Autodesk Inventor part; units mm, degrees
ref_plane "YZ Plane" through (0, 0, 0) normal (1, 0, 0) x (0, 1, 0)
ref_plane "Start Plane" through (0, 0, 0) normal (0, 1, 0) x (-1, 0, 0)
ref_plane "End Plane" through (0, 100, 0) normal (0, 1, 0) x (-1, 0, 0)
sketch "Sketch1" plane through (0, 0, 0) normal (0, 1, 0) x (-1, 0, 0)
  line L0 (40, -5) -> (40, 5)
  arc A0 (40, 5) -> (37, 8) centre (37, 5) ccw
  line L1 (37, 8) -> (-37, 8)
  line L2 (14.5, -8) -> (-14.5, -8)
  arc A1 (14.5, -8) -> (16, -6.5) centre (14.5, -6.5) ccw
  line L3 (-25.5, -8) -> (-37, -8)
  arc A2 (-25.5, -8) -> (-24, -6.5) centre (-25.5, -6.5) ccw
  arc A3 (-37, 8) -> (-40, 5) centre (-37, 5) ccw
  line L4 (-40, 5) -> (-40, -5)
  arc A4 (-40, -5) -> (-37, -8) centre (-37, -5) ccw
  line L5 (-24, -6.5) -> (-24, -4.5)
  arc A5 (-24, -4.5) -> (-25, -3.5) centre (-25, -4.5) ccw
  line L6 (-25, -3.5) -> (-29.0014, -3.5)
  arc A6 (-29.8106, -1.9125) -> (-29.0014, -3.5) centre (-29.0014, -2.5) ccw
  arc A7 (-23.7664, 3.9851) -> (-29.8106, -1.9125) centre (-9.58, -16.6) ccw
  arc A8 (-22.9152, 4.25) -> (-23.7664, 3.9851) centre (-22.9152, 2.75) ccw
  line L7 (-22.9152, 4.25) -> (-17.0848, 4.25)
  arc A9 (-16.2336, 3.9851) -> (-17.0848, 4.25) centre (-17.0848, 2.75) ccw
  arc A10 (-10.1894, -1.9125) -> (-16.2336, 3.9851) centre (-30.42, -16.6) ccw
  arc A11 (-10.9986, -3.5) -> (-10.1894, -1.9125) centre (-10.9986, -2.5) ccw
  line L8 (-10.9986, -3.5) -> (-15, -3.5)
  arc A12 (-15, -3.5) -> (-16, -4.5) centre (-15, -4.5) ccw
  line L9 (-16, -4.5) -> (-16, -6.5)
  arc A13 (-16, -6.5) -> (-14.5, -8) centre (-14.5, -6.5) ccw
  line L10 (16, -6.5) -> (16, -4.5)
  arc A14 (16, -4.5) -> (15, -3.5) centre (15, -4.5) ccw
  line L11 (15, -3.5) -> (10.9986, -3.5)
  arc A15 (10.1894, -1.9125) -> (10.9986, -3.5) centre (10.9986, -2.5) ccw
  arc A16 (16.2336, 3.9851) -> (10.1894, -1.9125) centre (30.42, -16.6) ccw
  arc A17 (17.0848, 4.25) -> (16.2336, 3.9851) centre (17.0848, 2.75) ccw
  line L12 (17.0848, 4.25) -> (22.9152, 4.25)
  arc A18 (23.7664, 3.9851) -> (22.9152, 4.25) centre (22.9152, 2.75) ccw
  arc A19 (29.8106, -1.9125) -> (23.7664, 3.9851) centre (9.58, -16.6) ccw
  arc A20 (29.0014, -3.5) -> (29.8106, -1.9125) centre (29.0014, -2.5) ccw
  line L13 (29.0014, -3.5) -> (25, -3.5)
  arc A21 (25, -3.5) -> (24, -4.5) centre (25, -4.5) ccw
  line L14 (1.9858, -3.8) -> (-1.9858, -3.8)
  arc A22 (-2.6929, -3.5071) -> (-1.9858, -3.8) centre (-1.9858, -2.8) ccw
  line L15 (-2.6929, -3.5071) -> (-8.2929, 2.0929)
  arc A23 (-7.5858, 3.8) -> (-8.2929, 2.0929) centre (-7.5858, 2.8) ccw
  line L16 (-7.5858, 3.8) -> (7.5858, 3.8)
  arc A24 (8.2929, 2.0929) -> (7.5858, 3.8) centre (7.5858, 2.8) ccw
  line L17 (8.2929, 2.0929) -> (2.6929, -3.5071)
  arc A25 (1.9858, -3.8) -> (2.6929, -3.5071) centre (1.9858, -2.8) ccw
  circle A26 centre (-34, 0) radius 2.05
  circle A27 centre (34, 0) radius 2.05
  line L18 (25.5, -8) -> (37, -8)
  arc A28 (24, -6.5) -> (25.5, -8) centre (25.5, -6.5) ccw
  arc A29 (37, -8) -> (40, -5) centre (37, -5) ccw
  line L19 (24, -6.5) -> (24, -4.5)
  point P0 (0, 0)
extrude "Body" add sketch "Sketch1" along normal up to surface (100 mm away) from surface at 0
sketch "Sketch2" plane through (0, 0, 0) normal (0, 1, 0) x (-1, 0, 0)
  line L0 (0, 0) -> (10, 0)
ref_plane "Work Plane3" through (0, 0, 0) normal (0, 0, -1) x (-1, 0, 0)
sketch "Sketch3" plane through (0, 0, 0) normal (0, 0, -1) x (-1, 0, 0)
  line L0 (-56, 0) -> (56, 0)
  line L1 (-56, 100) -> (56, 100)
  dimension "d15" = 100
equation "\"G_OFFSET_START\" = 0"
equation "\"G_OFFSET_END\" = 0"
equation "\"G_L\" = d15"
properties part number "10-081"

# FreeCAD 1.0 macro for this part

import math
import FreeCAD as App
import Part
import Sketcher

V = App.Vector

doc = App.newDocument("Part")
params = doc.addObject("Spreadsheet::Sheet", "Params")
for row, (alias, value) in enumerate([
    ("sketch1_radius", "3 mm"),
    ("sketch1_radius2", "1 mm"),
    ("sketch1_radius3", "25 mm"),
    ("sketch1_diameter", "4.1 mm"),
    ("sketch1_radius4", "1.5 mm"),
    ("pad1_length", "100 mm"),
], start=1):
    params.set(f"A{row}", alias)
    params.set(f"B{row}", "=" + value)
    params.setAlias(f"B{row}", alias)

body = doc.addObject("PartDesign::Body", "Body")

# Sketch on XZ plane
sketch1 = body.newObject("Sketcher::SketchObject", "Sketch")
sketch1.AttachmentSupport = (doc.getObject("XZ_Plane"), [""])
sketch1.MapMode = "FlatFace"
sketch1.addGeometry(Part.ArcOfCircle(Part.Circle(V(-37, -5, 0), V(0, 0, 1), 3), math.radians(180), math.radians(270)), False)
sketch1.addGeometry(Part.LineSegment(V(-40, -5, 0), V(-40, 5, 0)), False)
sketch1.addGeometry(Part.ArcOfCircle(Part.Circle(V(-37, 5, 0), V(0, 0, 1), 3), math.radians(90), math.radians(180)), False)
sketch1.addGeometry(Part.LineSegment(V(-37, 8, 0), V(37, 8, 0)), False)
sketch1.addGeometry(Part.ArcOfCircle(Part.Circle(V(37, 5, 0), V(0, 0, 1), 3), math.radians(0), math.radians(90)), False)
sketch1.addGeometry(Part.LineSegment(V(40, 5, 0), V(40, -5, 0)), False)
sketch1.addGeometry(Part.ArcOfCircle(Part.Circle(V(37, -5, 0), V(0, 0, 1), 3), math.radians(-90), math.radians(0)), False)
sketch1.addGeometry(Part.LineSegment(V(37, -8, 0), V(25.5, -8, 0)), False)
sketch1.addGeometry(Part.ArcOfCircle(Part.Circle(V(25.5, -6.5, 0), V(0, 0, 1), 1.5), math.radians(180), math.radians(270)), False)
sketch1.addGeometry(Part.LineSegment(V(24, -6.5, 0), V(24, -4.5, 0)), False)
sketch1.addGeometry(Part.ArcOfCircle(Part.Circle(V(25, -4.5, 0), V(0, 0, 1), 1), math.radians(90), math.radians(180)), False)
sketch1.addGeometry(Part.LineSegment(V(25, -3.5, 0), V(29, -3.5, 0)), False)
sketch1.addGeometry(Part.ArcOfCircle(Part.Circle(V(29, -2.5, 0), V(0, 0, 1), 1), math.radians(-90), math.radians(36)), False)
sketch1.addGeometry(Part.ArcOfCircle(Part.Circle(V(9.6, -16.6, 0), V(0, 0, 1), 25), math.radians(35.98), math.radians(55.43)), False)
sketch1.addGeometry(Part.ArcOfCircle(Part.Circle(V(22.9, 2.8, 0), V(0, 0, 1), 1.5), math.radians(55), math.radians(90)), False)
sketch1.addGeometry(Part.LineSegment(V(22.9, 4.2, 0), V(17.1, 4.2, 0)), False)
sketch1.addGeometry(Part.ArcOfCircle(Part.Circle(V(17.1, 2.8, 0), V(0, 0, 1), 1.5), math.radians(90), math.radians(125)), False)
sketch1.addGeometry(Part.ArcOfCircle(Part.Circle(V(30.4, -16.6, 0), V(0, 0, 1), 25), math.radians(124.57), math.radians(144.02)), False)
sketch1.addGeometry(Part.ArcOfCircle(Part.Circle(V(11, -2.5, 0), V(0, 0, 1), 1), math.radians(144), math.radians(270)), False)
sketch1.addGeometry(Part.LineSegment(V(11, -3.5, 0), V(15, -3.5, 0)), False)
sketch1.addGeometry(Part.ArcOfCircle(Part.Circle(V(15, -4.5, 0), V(0, 0, 1), 1), math.radians(0), math.radians(90)), False)
sketch1.addGeometry(Part.LineSegment(V(16, -4.5, 0), V(16, -6.5, 0)), False)
sketch1.addGeometry(Part.ArcOfCircle(Part.Circle(V(14.5, -6.5, 0), V(0, 0, 1), 1.5), math.radians(-90), math.radians(0)), False)
sketch1.addGeometry(Part.LineSegment(V(14.5, -8, 0), V(-14.5, -8, 0)), False)
sketch1.addGeometry(Part.ArcOfCircle(Part.Circle(V(-14.5, -6.5, 0), V(0, 0, 1), 1.5), math.radians(180), math.radians(270)), False)
sketch1.addGeometry(Part.LineSegment(V(-16, -6.5, 0), V(-16, -4.5, 0)), False)
sketch1.addGeometry(Part.ArcOfCircle(Part.Circle(V(-15, -4.5, 0), V(0, 0, 1), 1), math.radians(90), math.radians(180)), False)
sketch1.addGeometry(Part.LineSegment(V(-15, -3.5, 0), V(-11, -3.5, 0)), False)
sketch1.addGeometry(Part.ArcOfCircle(Part.Circle(V(-11, -2.5, 0), V(0, 0, 1), 1), math.radians(-90), math.radians(36)), False)
sketch1.addGeometry(Part.ArcOfCircle(Part.Circle(V(-30.4, -16.6, 0), V(0, 0, 1), 25), math.radians(35.98), math.radians(55.43)), False)
sketch1.addGeometry(Part.ArcOfCircle(Part.Circle(V(-17.1, 2.8, 0), V(0, 0, 1), 1.5), math.radians(55), math.radians(90)), False)
sketch1.addGeometry(Part.LineSegment(V(-17.1, 4.2, 0), V(-22.9, 4.2, 0)), False)
sketch1.addGeometry(Part.ArcOfCircle(Part.Circle(V(-22.9, 2.8, 0), V(0, 0, 1), 1.5), math.radians(90), math.radians(125)), False)
sketch1.addGeometry(Part.ArcOfCircle(Part.Circle(V(-9.6, -16.6, 0), V(0, 0, 1), 25), math.radians(124.57), math.radians(144.02)), False)
sketch1.addGeometry(Part.ArcOfCircle(Part.Circle(V(-29, -2.5, 0), V(0, 0, 1), 1), math.radians(144), math.radians(270)), False)
sketch1.addGeometry(Part.LineSegment(V(-29, -3.5, 0), V(-25, -3.5, 0)), False)
sketch1.addGeometry(Part.ArcOfCircle(Part.Circle(V(-25, -4.5, 0), V(0, 0, 1), 1), math.radians(0), math.radians(90)), False)
sketch1.addGeometry(Part.LineSegment(V(-24, -4.5, 0), V(-24, -6.5, 0)), False)
sketch1.addGeometry(Part.ArcOfCircle(Part.Circle(V(-25.5, -6.5, 0), V(0, 0, 1), 1.5), math.radians(-90), math.radians(0)), False)
sketch1.addGeometry(Part.LineSegment(V(-25.5, -8, 0), V(-37, -8, 0)), False)
sketch1.addGeometry(Part.ArcOfCircle(Part.Circle(V(-2, -2.8, 0), V(0, 0, 1), 1), math.radians(-135), math.radians(-90)), False)
sketch1.addGeometry(Part.LineSegment(V(-2, -3.8, 0), V(2, -3.8, 0)), False)
sketch1.addGeometry(Part.ArcOfCircle(Part.Circle(V(2, -2.8, 0), V(0, 0, 1), 1), math.radians(-90), math.radians(-45)), False)
sketch1.addGeometry(Part.LineSegment(V(2.7, -3.5, 0), V(8.3, 2.1, 0)), False)
sketch1.addGeometry(Part.ArcOfCircle(Part.Circle(V(7.6, 2.8, 0), V(0, 0, 1), 1), math.radians(-45), math.radians(90)), False)
sketch1.addGeometry(Part.LineSegment(V(7.6, 3.8, 0), V(-7.6, 3.8, 0)), False)
sketch1.addGeometry(Part.ArcOfCircle(Part.Circle(V(-7.6, 2.8, 0), V(0, 0, 1), 1), math.radians(90), math.radians(225)), False)
sketch1.addGeometry(Part.LineSegment(V(-8.3, 2.1, 0), V(-2.7, -3.5, 0)), False)
sketch1.addGeometry(Part.Circle(V(34, 0, 0), V(0, 0, 1), 2), False)
sketch1.addGeometry(Part.Circle(V(-34, 0, 0), V(0, 0, 1), 2), False)
sketch1.addConstraint(Sketcher.Constraint("Tangent", 0, 1, 1, 1))
sketch1.addConstraint(Sketcher.Constraint("Tangent", 1, 2, 2, 2))
sketch1.addConstraint(Sketcher.Constraint("Tangent", 2, 1, 3, 1))
sketch1.addConstraint(Sketcher.Constraint("Tangent", 3, 2, 4, 2))
sketch1.addConstraint(Sketcher.Constraint("Tangent", 4, 1, 5, 1))
sketch1.addConstraint(Sketcher.Constraint("Tangent", 5, 2, 6, 2))
sketch1.addConstraint(Sketcher.Constraint("Tangent", 6, 1, 7, 1))
sketch1.addConstraint(Sketcher.Constraint("Tangent", 7, 2, 8, 2))
sketch1.addConstraint(Sketcher.Constraint("Tangent", 8, 1, 9, 1))
sketch1.addConstraint(Sketcher.Constraint("Tangent", 9, 2, 10, 2))
sketch1.addConstraint(Sketcher.Constraint("Tangent", 10, 1, 11, 1))
sketch1.addConstraint(Sketcher.Constraint("Tangent", 11, 2, 12, 1))
sketch1.addConstraint(Sketcher.Constraint("Tangent", 12, 2, 13, 1))
sketch1.addConstraint(Sketcher.Constraint("Tangent", 13, 2, 14, 1))
sketch1.addConstraint(Sketcher.Constraint("Tangent", 14, 2, 15, 1))
sketch1.addConstraint(Sketcher.Constraint("Tangent", 15, 2, 16, 1))
sketch1.addConstraint(Sketcher.Constraint("Tangent", 16, 2, 17, 1))
sketch1.addConstraint(Sketcher.Constraint("Tangent", 17, 2, 18, 1))
sketch1.addConstraint(Sketcher.Constraint("Tangent", 18, 2, 19, 1))
sketch1.addConstraint(Sketcher.Constraint("Tangent", 19, 2, 20, 2))
sketch1.addConstraint(Sketcher.Constraint("Tangent", 20, 1, 21, 1))
sketch1.addConstraint(Sketcher.Constraint("Tangent", 21, 2, 22, 2))
sketch1.addConstraint(Sketcher.Constraint("Tangent", 22, 1, 23, 1))
sketch1.addConstraint(Sketcher.Constraint("Tangent", 23, 2, 24, 2))
sketch1.addConstraint(Sketcher.Constraint("Tangent", 24, 1, 25, 1))
sketch1.addConstraint(Sketcher.Constraint("Tangent", 25, 2, 26, 2))
sketch1.addConstraint(Sketcher.Constraint("Tangent", 26, 1, 27, 1))
sketch1.addConstraint(Sketcher.Constraint("Tangent", 27, 2, 28, 1))
sketch1.addConstraint(Sketcher.Constraint("Tangent", 28, 2, 29, 1))
sketch1.addConstraint(Sketcher.Constraint("Tangent", 29, 2, 30, 1))
sketch1.addConstraint(Sketcher.Constraint("Tangent", 30, 2, 31, 1))
sketch1.addConstraint(Sketcher.Constraint("Tangent", 31, 2, 32, 1))
sketch1.addConstraint(Sketcher.Constraint("Tangent", 32, 2, 33, 1))
sketch1.addConstraint(Sketcher.Constraint("Tangent", 33, 2, 34, 1))
sketch1.addConstraint(Sketcher.Constraint("Tangent", 34, 2, 35, 1))
sketch1.addConstraint(Sketcher.Constraint("Tangent", 35, 2, 36, 2))
sketch1.addConstraint(Sketcher.Constraint("Tangent", 36, 1, 37, 1))
sketch1.addConstraint(Sketcher.Constraint("Tangent", 37, 2, 38, 2))
sketch1.addConstraint(Sketcher.Constraint("Tangent", 38, 1, 39, 1))
sketch1.addConstraint(Sketcher.Constraint("Tangent", 39, 2, 0, 2))
sketch1.addConstraint(Sketcher.Constraint("Tangent", 40, 2, 41, 1))
sketch1.addConstraint(Sketcher.Constraint("Tangent", 41, 2, 42, 1))
sketch1.addConstraint(Sketcher.Constraint("Tangent", 42, 2, 43, 1))
sketch1.addConstraint(Sketcher.Constraint("Tangent", 43, 2, 44, 1))
sketch1.addConstraint(Sketcher.Constraint("Tangent", 44, 2, 45, 1))
sketch1.addConstraint(Sketcher.Constraint("Tangent", 45, 2, 46, 1))
sketch1.addConstraint(Sketcher.Constraint("Tangent", 46, 2, 47, 1))
sketch1.addConstraint(Sketcher.Constraint("Tangent", 47, 2, 40, 1))
sketch1.addConstraint(Sketcher.Constraint("Vertical", 1))
sketch1.addConstraint(Sketcher.Constraint("Horizontal", 3))
sketch1.addConstraint(Sketcher.Constraint("Vertical", 5))
sketch1.addConstraint(Sketcher.Constraint("Horizontal", 7))
sketch1.addConstraint(Sketcher.Constraint("Vertical", 9))
sketch1.addConstraint(Sketcher.Constraint("Horizontal", 11))
sketch1.addConstraint(Sketcher.Constraint("Horizontal", 15))
sketch1.addConstraint(Sketcher.Constraint("Horizontal", 19))
sketch1.addConstraint(Sketcher.Constraint("Vertical", 21))
sketch1.addConstraint(Sketcher.Constraint("Horizontal", 23))
sketch1.addConstraint(Sketcher.Constraint("Vertical", 25))
sketch1.addConstraint(Sketcher.Constraint("Horizontal", 27))
sketch1.addConstraint(Sketcher.Constraint("Horizontal", 31))
sketch1.addConstraint(Sketcher.Constraint("Horizontal", 35))
sketch1.addConstraint(Sketcher.Constraint("Vertical", 37))
sketch1.addConstraint(Sketcher.Constraint("Horizontal", 39))
sketch1.addConstraint(Sketcher.Constraint("Horizontal", 41))
sketch1.addConstraint(Sketcher.Constraint("Horizontal", 45))
sketch1.addConstraint(Sketcher.Constraint("Equal", 0, 2))
sketch1.addConstraint(Sketcher.Constraint("Equal", 2, 4))
sketch1.addConstraint(Sketcher.Constraint("Equal", 4, 6))
sketch1.addConstraint(Sketcher.Constraint("Equal", 10, 12))
sketch1.addConstraint(Sketcher.Constraint("Equal", 8, 14))
sketch1.addConstraint(Sketcher.Constraint("Equal", 14, 16))
sketch1.addConstraint(Sketcher.Constraint("Equal", 13, 17))
sketch1.addConstraint(Sketcher.Constraint("Equal", 12, 18))
sketch1.addConstraint(Sketcher.Constraint("Equal", 18, 20))
sketch1.addConstraint(Sketcher.Constraint("Equal", 16, 22))
sketch1.addConstraint(Sketcher.Constraint("Equal", 22, 24))
sketch1.addConstraint(Sketcher.Constraint("Equal", 20, 26))
sketch1.addConstraint(Sketcher.Constraint("Equal", 26, 28))
sketch1.addConstraint(Sketcher.Constraint("Equal", 17, 29))
sketch1.addConstraint(Sketcher.Constraint("Equal", 24, 30))
sketch1.addConstraint(Sketcher.Constraint("Equal", 30, 32))
sketch1.addConstraint(Sketcher.Constraint("Equal", 29, 33))
sketch1.addConstraint(Sketcher.Constraint("Equal", 28, 34))
sketch1.addConstraint(Sketcher.Constraint("Equal", 34, 36))
sketch1.addConstraint(Sketcher.Constraint("Equal", 32, 38))
sketch1.addConstraint(Sketcher.Constraint("Equal", 36, 40))
sketch1.addConstraint(Sketcher.Constraint("Equal", 40, 42))
sketch1.addConstraint(Sketcher.Constraint("Equal", 42, 44))
sketch1.addConstraint(Sketcher.Constraint("Equal", 44, 46))
sketch1.addConstraint(Sketcher.Constraint("Equal", 48, 49))
sketch1.addConstraint(Sketcher.Constraint("Symmetric", 0, 3, 4, 3, -1, 1))
sketch1.addConstraint(Sketcher.Constraint("Symmetric", 48, 3, 49, 3, -1, 1))
sketch1.addConstraint(Sketcher.Constraint("Symmetric", 20, 3, 26, 3, -2))
sketch1.addConstraint(Sketcher.Constraint("Symmetric", 17, 3, 29, 3, -2))
sketch1.addConstraint(Sketcher.Constraint("Symmetric", 14, 3, 32, 3, -2))
sketch1.addConstraint(Sketcher.Constraint("Symmetric", 12, 3, 34, 3, -2))
sketch1.addConstraint(Sketcher.Constraint("Symmetric", 8, 3, 38, 3, -2))
sketch1.addConstraint(Sketcher.Constraint("Symmetric", 43, 2, 46, 2, -2))
sketch1.addConstraint(Sketcher.Constraint("PointOnObject", 48, 3, -1))
sketch1.addConstraint(Sketcher.Constraint("Perpendicular", 43, 47))
sketch1.addConstraint(Sketcher.Constraint("Horizontal", 13, 3, 17, 3))
sketch1.addConstraint(Sketcher.Constraint("Horizontal", 12, 3, 18, 3))
sketch1.addConstraint(Sketcher.Constraint("Horizontal", 8, 3, 22, 3))
sketch1.addConstraint(Sketcher.Constraint("Equal", 11, 19))
sketch1.addConstraint(Sketcher.Constraint("Radius", 0, 3.0))
sketch1.addConstraint(Sketcher.Constraint("Radius", 10, 1.0))
sketch1.addConstraint(Sketcher.Constraint("Radius", 13, 25.0))
sketch1.addConstraint(Sketcher.Constraint("Diameter", 48, 4.1))
sketch1.addConstraint(Sketcher.Constraint("Radius", 8, 1.5))
sketch1.addConstraint(Sketcher.Constraint("DistanceX", 3, 1, 3, 2, 74.0))
sketch1.addConstraint(Sketcher.Constraint("DistanceX", 23, 2, 23, 1, 29.0))
sketch1.addConstraint(Sketcher.Constraint("DistanceY", 1, 1, 1, 2, 10.0))
sketch1.addConstraint(Sketcher.Constraint("DistanceY", 9, 1, 9, 2, 2.0))
sketch1.addConstraint(Sketcher.Constraint("DistanceX", 7, 2, 7, 1, 11.5))
sketch1.addConstraint(Sketcher.Constraint("DistanceX", -1, 1, 48, 3, 34.0))
sketch1.addConstraint(Sketcher.Constraint("DistanceY", 13, 3, -1, 1, 16.6))
sketch1.addConstraint(Sketcher.Constraint("DistanceY", 40, 3, -1, 1, 2.8))
sketch1.addConstraint(Sketcher.Constraint("DistanceY", -1, 1, 44, 3, 2.8))
sketch1.addConstraint(Sketcher.Constraint("DistanceX", -1, 1, 13, 3, 9.58))
sketch1.addConstraint(Sketcher.Constraint("DistanceY", -1, 1, 14, 3, 2.75))
sketch1.addConstraint(Sketcher.Constraint("DistanceX", 41, 1, 41, 2, 3.9716))
sketch1.setExpression("Constraints[105]", "Params.sketch1_radius")
sketch1.setExpression("Constraints[106]", "Params.sketch1_radius2")
sketch1.setExpression("Constraints[107]", "Params.sketch1_radius3")
sketch1.setExpression("Constraints[108]", "Params.sketch1_diameter")
sketch1.setExpression("Constraints[109]", "Params.sketch1_radius4")
pad1 = body.newObject("PartDesign::Pad", "Pad")
pad1.Profile = sketch1
pad1.setExpression("Length", "Params.pad1_length")
pad1.Reversed = True

doc.recompute()
